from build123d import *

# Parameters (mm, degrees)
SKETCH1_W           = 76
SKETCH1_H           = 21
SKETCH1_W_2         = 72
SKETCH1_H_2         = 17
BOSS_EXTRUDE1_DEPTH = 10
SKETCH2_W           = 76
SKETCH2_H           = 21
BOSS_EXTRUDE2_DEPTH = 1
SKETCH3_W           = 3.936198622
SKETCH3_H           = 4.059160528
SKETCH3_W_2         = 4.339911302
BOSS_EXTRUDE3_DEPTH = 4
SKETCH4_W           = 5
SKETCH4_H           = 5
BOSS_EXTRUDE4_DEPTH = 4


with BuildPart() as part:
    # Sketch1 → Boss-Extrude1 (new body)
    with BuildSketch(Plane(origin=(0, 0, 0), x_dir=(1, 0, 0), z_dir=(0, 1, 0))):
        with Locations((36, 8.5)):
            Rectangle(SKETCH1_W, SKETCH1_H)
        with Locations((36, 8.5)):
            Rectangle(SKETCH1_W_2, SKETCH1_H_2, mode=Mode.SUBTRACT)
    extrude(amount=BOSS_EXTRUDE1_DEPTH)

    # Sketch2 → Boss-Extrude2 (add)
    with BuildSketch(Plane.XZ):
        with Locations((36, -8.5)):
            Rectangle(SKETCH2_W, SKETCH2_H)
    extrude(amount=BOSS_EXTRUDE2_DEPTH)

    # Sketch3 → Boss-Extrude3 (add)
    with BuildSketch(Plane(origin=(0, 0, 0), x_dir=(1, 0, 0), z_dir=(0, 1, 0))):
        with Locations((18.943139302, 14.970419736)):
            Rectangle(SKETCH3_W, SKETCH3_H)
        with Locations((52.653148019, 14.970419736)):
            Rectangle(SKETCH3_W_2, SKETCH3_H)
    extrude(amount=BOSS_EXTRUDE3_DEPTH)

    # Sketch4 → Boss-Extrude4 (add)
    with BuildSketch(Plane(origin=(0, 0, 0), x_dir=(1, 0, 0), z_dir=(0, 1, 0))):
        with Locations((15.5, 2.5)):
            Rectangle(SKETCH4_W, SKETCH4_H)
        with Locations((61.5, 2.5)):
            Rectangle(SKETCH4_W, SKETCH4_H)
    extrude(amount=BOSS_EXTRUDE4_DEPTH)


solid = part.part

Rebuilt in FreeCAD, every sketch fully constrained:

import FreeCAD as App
import Part
import Sketcher
Q = App.Units.Quantity


def add_polygon(sketch, points):
    """Adds a closed chain of lines whose ends are joined by coincident constraints."""
    first, n = sketch.GeometryCount, len(points)
    for a, b in zip(points, points[1:] + points[:1]):
        sketch.addGeometry(Part.LineSegment(App.Vector(*a, 0), App.Vector(*b, 0)), False)
    for i in range(n):
        sketch.addConstraint(Sketcher.Constraint("Coincident", first + i, 2, first + (i + 1) % n, 1))

doc = App.newDocument("Part")
params = doc.addObject("Spreadsheet::Sheet", "Params")
for row, (alias, value) in enumerate([
    ("sketch1_width", "76 mm"),
    ("sketch1_width2", "72 mm"),
    ("sketch1_height", "21 mm"),
    ("sketch1_height2", "17 mm"),
    ("pad1_length", "10 mm"),
    ("sketch2_width", "76 mm"),
    ("sketch2_height", "21 mm"),
    ("pad2_length", "1 mm"),
    ("pad3_length", "4 mm"),
    ("sketch4_width", "5 mm"),
    ("pad4_length", "4 mm"),
], start=1):
    params.set(f"A{row}", alias)
    params.set(f"B{row}", "=" + value)
    params.setAlias(f"B{row}", alias)

body = doc.addObject("PartDesign::Body", "Body")

# Sketch on XZ plane
sketch1 = body.newObject("Sketcher::SketchObject", "Sketch")
sketch1.AttachmentSupport = (doc.getObject("XZ_Plane"), [""])
sketch1.MapMode = "FlatFace"
add_polygon(sketch1, [(-2, -19), (-2, 2), (74, 2), (74, -19)])  # lines 0-3
add_polygon(sketch1, [(72, 0), (0, 0), (0, -17), (72, -17)])  # lines 4-7
sketch1.addConstraint([
    Sketcher.Constraint("Vertical", 0),
    Sketcher.Constraint("Horizontal", 1),
    Sketcher.Constraint("Vertical", 2),
    Sketcher.Constraint("Horizontal", 3),
    Sketcher.Constraint("Horizontal", 4),
    Sketcher.Constraint("Vertical", 5),
    Sketcher.Constraint("Horizontal", 6),
    Sketcher.Constraint("Vertical", 7),
    Sketcher.Constraint("Coincident", 4, 2, -1, 1),
    Sketcher.Constraint("DistanceX", 1, 1, 1, 2, Q("76 mm")),
    Sketcher.Constraint("DistanceX", 4, 2, 4, 1, Q("72 mm")),
    Sketcher.Constraint("DistanceY", 0, 1, 0, 2, Q("21 mm")),
    Sketcher.Constraint("DistanceY", 5, 2, 5, 1, Q("17 mm")),
    Sketcher.Constraint("DistanceX", 0, 2, -1, 1, Q("2 mm")),
    Sketcher.Constraint("DistanceY", -1, 1, 0, 2, Q("2 mm")),
])
sketch1.setExpression("Constraints[17]", "Params.sketch1_width")
sketch1.setExpression("Constraints[18]", "Params.sketch1_width2")
sketch1.setExpression("Constraints[19]", "Params.sketch1_height")
sketch1.setExpression("Constraints[20]", "Params.sketch1_height2")
pad1 = body.newObject("PartDesign::Pad", "Pad")
pad1.Profile = sketch1
pad1.setExpression("Length", "Params.pad1_length")
pad1.Reversed = True

# Sketch on XZ plane
sketch2 = body.newObject("Sketcher::SketchObject", "Sketch001")
sketch2.AttachmentSupport = (doc.getObject("XZ_Plane"), [""])
sketch2.MapMode = "FlatFace"
add_polygon(sketch2, [(-2, 2), (-2, -19), (74, -19), (74, 2)])  # lines 0-3
sketch2.addConstraint([
    Sketcher.Constraint("Vertical", 0),
    Sketcher.Constraint("Horizontal", 1),
    Sketcher.Constraint("Vertical", 2),
    Sketcher.Constraint("Horizontal", 3),
    Sketcher.Constraint("DistanceX", 1, 1, 1, 2, Q("76 mm")),
    Sketcher.Constraint("DistanceY", 0, 2, 0, 1, Q("21 mm")),
    Sketcher.Constraint("DistanceX", 0, 2, -1, 1, Q("2 mm")),
    Sketcher.Constraint("DistanceY", 0, 2, -1, 1, Q("19 mm")),
])
sketch2.setExpression("Constraints[8]", "Params.sketch2_width")
sketch2.setExpression("Constraints[9]", "Params.sketch2_height")
pad2 = body.newObject("PartDesign::Pad", "Pad001")
pad2.Profile = sketch2
pad2.setExpression("Length", "Params.pad2_length")

# Sketch on XZ plane
sketch3 = body.newObject("Sketcher::SketchObject", "Sketch002")
sketch3.AttachmentSupport = (doc.getObject("XZ_Plane"), [""])
sketch3.MapMode = "FlatFace"
add_polygon(sketch3, [(16.97504, -17), (16.97504, -12.940839), (20.911239, -12.940839), (20.911239, -17)])  # lines 0-3
add_polygon(sketch3, [(50.483192, -17), (50.483192, -12.940839), (54.823104, -12.940839), (54.823104, -17)])  # lines 4-7
sketch3.addConstraint([
    Sketcher.Constraint("Vertical", 0),
    Sketcher.Constraint("Horizontal", 1),
    Sketcher.Constraint("Vertical", 2),
    Sketcher.Constraint("Horizontal", 3),
    Sketcher.Constraint("Vertical", 4),
    Sketcher.Constraint("Horizontal", 5),
    Sketcher.Constraint("Vertical", 6),
    Sketcher.Constraint("Horizontal", 7),
    Sketcher.Constraint("Horizontal", 1, 2, 4, 2),
    Sketcher.Constraint("Horizontal", 3, 2, 6, 2),
    Sketcher.Constraint("DistanceY", 2, 2, -1, 1, Q("17 mm")),
    Sketcher.Constraint("DistanceX", 1, 1, 1, 2, Q("3.936199 mm")),
    Sketcher.Constraint("DistanceX", 5, 1, 5, 2, Q("4.339911 mm")),
    Sketcher.Constraint("DistanceY", 0, 1, 0, 2, Q("4.059161 mm")),
    Sketcher.Constraint("DistanceX", -1, 1, 0, 2, Q("16.97504 mm")),
    Sketcher.Constraint("DistanceX", -1, 1, 4, 2, Q("50.483192 mm")),
])
pad3 = body.newObject("PartDesign::Pad", "Pad002")
pad3.Profile = sketch3
pad3.setExpression("Length", "Params.pad3_length")
pad3.Reversed = True

# Sketch on XZ plane
sketch4 = body.newObject("Sketcher::SketchObject", "Sketch003")
sketch4.AttachmentSupport = (doc.getObject("XZ_Plane"), [""])
sketch4.MapMode = "FlatFace"
add_polygon(sketch4, [(13, -5), (13, 0), (18, 0), (18, -5)])  # lines 0-3
add_polygon(sketch4, [(59, -5), (59, 0), (64, 0), (64, -5)])  # lines 4-7
sketch4.addConstraint([
    Sketcher.Constraint("Vertical", 0),
    Sketcher.Constraint("Horizontal", 1),
    Sketcher.Constraint("Vertical", 2),
    Sketcher.Constraint("Horizontal", 3),
    Sketcher.Constraint("Vertical", 4),
    Sketcher.Constraint("Horizontal", 5),
    Sketcher.Constraint("Vertical", 6),
    Sketcher.Constraint("Horizontal", 7),
    Sketcher.Constraint("PointOnObject", 0, 2, -1),
    Sketcher.Constraint("PointOnObject", 4, 2, -1),
    Sketcher.Constraint("Horizontal", 3, 2, 6, 2),
    Sketcher.Constraint("Equal", 3, 5),
    Sketcher.Constraint("Equal", 7, 0),
    Sketcher.Constraint("DistanceX", 1, 1, 1, 2, Q("5 mm")),
    Sketcher.Constraint("DistanceX", -1, 1, 0, 2, Q("13 mm")),
    Sketcher.Constraint("DistanceX", -1, 1, 4, 2, Q("59 mm")),
])
sketch4.setExpression("Constraints[21]", "Params.sketch4_width")
pad4 = body.newObject("PartDesign::Pad", "Pad003")
pad4.Profile = sketch4
pad4.setExpression("Length", "Params.pad4_length")
pad4.Reversed = True

doc.recompute()
